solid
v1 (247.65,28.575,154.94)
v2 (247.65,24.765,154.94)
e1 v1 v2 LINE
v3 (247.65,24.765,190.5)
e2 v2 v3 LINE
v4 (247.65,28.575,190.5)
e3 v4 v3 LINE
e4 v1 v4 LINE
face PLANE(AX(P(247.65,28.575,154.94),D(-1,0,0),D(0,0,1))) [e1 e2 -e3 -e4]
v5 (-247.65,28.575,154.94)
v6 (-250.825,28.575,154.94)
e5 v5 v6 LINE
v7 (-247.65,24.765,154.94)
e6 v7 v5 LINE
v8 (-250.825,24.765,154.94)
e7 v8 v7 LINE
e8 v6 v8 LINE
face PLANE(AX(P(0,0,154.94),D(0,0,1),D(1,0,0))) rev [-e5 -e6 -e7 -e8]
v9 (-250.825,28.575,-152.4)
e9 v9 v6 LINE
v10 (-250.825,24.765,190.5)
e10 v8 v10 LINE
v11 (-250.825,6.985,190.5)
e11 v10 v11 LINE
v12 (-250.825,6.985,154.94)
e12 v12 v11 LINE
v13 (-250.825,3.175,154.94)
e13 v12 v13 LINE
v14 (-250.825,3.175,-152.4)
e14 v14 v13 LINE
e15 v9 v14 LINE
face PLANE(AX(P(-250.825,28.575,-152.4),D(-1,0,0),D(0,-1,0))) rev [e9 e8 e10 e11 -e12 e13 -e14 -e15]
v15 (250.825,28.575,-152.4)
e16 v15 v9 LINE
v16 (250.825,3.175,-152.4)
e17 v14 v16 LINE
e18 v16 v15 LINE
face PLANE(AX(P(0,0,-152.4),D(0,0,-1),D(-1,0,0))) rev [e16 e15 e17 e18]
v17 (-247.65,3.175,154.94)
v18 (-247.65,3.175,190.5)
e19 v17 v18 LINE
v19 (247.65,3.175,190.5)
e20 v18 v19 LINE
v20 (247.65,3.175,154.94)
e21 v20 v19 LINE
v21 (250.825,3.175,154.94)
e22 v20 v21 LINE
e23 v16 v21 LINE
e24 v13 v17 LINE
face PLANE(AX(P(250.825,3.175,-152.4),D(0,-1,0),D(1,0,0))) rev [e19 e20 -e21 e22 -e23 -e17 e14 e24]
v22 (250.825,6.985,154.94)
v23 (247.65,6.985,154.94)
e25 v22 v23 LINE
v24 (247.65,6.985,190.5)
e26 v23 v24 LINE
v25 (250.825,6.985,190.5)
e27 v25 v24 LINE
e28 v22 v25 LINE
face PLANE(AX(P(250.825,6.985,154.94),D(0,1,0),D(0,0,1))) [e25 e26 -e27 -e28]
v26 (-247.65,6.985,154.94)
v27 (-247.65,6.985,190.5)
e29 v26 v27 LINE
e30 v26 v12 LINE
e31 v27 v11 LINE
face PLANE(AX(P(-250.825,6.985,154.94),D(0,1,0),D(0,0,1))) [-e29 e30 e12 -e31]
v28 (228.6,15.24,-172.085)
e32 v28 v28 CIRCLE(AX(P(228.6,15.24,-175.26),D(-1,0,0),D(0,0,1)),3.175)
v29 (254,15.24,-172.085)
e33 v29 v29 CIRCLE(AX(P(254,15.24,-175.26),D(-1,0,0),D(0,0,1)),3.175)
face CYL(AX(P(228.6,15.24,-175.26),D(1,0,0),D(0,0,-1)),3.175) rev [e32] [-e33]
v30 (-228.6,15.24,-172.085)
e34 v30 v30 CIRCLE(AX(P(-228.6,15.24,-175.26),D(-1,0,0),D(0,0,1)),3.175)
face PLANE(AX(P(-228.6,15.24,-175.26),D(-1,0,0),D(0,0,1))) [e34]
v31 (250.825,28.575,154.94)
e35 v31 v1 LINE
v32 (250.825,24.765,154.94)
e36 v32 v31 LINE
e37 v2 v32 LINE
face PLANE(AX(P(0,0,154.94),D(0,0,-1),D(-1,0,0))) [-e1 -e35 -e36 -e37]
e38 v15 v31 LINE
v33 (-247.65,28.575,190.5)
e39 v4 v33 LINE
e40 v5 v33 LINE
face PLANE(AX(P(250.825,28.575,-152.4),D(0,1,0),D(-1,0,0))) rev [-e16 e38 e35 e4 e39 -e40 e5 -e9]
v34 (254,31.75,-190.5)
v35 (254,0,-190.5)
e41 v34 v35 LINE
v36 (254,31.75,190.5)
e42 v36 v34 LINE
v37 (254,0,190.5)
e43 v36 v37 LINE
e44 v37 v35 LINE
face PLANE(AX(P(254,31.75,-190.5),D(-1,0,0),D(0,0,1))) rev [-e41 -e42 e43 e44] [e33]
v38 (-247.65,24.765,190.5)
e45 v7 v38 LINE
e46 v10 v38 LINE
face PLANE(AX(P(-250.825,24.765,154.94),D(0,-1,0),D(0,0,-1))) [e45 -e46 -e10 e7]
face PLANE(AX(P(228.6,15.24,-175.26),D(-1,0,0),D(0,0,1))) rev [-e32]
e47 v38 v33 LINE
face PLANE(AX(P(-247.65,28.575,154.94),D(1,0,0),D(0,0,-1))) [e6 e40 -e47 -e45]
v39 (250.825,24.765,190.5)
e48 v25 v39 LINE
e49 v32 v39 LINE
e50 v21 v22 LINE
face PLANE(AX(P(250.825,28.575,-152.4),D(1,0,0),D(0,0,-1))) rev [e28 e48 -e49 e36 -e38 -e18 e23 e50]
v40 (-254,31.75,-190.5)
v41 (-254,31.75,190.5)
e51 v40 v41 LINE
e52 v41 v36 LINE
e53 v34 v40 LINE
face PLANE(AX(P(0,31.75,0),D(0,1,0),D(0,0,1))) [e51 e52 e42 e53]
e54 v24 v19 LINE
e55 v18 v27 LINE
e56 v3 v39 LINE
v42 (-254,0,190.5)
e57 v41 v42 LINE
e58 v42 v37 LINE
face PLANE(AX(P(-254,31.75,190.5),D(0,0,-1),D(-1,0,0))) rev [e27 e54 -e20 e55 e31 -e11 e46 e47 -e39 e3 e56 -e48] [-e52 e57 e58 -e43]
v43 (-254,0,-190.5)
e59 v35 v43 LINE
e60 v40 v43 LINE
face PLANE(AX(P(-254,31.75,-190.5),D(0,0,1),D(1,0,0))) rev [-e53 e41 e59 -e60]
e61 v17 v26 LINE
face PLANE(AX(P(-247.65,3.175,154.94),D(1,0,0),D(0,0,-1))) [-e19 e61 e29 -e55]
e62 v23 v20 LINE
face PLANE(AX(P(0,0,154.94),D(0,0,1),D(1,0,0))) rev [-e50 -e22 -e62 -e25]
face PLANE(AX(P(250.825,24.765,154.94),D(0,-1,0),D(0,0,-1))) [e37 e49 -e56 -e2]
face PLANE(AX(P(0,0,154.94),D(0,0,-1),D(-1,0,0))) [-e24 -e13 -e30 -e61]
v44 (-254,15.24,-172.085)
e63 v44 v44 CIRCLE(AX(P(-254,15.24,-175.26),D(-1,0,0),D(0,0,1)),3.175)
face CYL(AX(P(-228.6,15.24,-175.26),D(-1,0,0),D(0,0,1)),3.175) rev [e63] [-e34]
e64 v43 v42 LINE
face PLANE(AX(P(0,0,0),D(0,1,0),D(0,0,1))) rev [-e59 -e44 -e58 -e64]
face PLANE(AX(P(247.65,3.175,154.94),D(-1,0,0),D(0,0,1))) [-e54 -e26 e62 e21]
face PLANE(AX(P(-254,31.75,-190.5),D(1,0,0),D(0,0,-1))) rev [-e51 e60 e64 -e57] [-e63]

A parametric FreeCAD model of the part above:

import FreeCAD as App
import Part
import Sketcher
from FreeCAD import Vector
Q = App.Units.Quantity


def add_polygon(sketch, points):
    """Adds a closed chain of lines whose ends are joined by coincident constraints."""
    first, n = sketch.GeometryCount, len(points)
    for a, b in zip(points, points[1:] + points[:1]):
        sketch.addGeometry(Part.LineSegment(App.Vector(*a, 0), App.Vector(*b, 0)), False)
    for i in range(n):
        sketch.addConstraint(Sketcher.Constraint("Coincident", first + i, 2, first + (i + 1) % n, 1))

doc = App.newDocument("Part")
body = doc.addObject("PartDesign::Body", "Body")

sketch1 = doc.addObject("Sketcher::SketchObject", "Sketch")
body.addObject(sketch1)
sketch1.AttachmentSupport = (doc.XZ_Plane, [""])
sketch1.MapMode = "FlatFace"
add_polygon(sketch1, [(-254, -190), (-254, 190), (254, 190), (254, -190)])
sketch1.addConstraint([
    Sketcher.Constraint("Vertical", 0),
    Sketcher.Constraint("Horizontal", 1),
    Sketcher.Constraint("Vertical", 2),
    Sketcher.Constraint("Horizontal", 3),
    Sketcher.Constraint("Symmetric", 0, 2, 2, 2, -1, 1),
    Sketcher.Constraint("DistanceX", 1, 1, 1, 2, Q("20 in")),
    Sketcher.Constraint("DistanceY", 0, 1, 0, 2, Q("15 in")),
])
pad1 = doc.addObject("PartDesign::Pad", "Pad")
body.addObject(pad1)
pad1.Profile = sketch1
pad1.Length = Q("1.25 in")
pad1.Reversed = True

sketch2 = doc.addObject("Sketcher::SketchObject", "Sketch001")
body.addObject(sketch2)
sketch2.AttachmentSupport = (doc.XY_Plane, [""])
sketch2.MapMode = "FlatFace"
sketch2.AttachmentOffset = App.Placement(Vector(0, 0, 7.5 * 25.4), App.Rotation())
add_polygon(sketch2, [(-251, 29), (-251, 3), (251, 3), (251, 29)])
sketch2.addConstraint([
    Sketcher.Constraint("Vertical", 0),
    Sketcher.Constraint("Horizontal", 1),
    Sketcher.Constraint("Vertical", 2),
    Sketcher.Constraint("Horizontal", 3),
    Sketcher.Constraint("DistanceY", 0, 2, 0, 1, Q("1 in")),
    Sketcher.Constraint("DistanceX", 1, 1, 1, 2, Q("19.75 in")),
    Sketcher.Constraint("DistanceX", 0, 2, -1, 1, Q("9.875 in")),
    Sketcher.Constraint("DistanceY", -1, 1, 0, 2, Q("0.125 in")),
])
pocket1 = doc.addObject("PartDesign::Pocket", "Pocket")
body.addObject(pocket1)
pocket1.Profile = sketch2
pocket1.Length = Q("13.5 in")

sketch3 = doc.addObject("Sketcher::SketchObject", "Sketch002")
body.addObject(sketch3)
sketch3.AttachmentSupport = (doc.XY_Plane, [""])
sketch3.MapMode = "FlatFace"
sketch3.AttachmentOffset = App.Placement(Vector(0, 0, 7.5 * 25.4), App.Rotation())
add_polygon(sketch3, [(-250.8, 28.6), (-250.8, 24.8), (-247.7, 24.8), (-247.7, 28.6)])
add_polygon(sketch3, [(-250.8, 7), (-250.8, 3.2), (-247.7, 3.2), (-247.7, 7)])
add_polygon(sketch3, [(247.7, 7), (247.7, 3.2), (250.8, 3.2), (250.8, 7)])
add_polygon(sketch3, [(247.7, 28.6), (247.7, 24.8), (250.8, 24.8), (250.8, 28.6)])
sketch3.addConstraint([
    Sketcher.Constraint("Vertical", 0),
    Sketcher.Constraint("Horizontal", 1),
    Sketcher.Constraint("Vertical", 2),
    Sketcher.Constraint("Horizontal", 3),
    Sketcher.Constraint("Vertical", 4),
    Sketcher.Constraint("Horizontal", 5),
    Sketcher.Constraint("Vertical", 6),
    Sketcher.Constraint("Horizontal", 7),
    Sketcher.Constraint("Vertical", 8),
    Sketcher.Constraint("Horizontal", 9),
    Sketcher.Constraint("Vertical", 10),
    Sketcher.Constraint("Horizontal", 11),
    Sketcher.Constraint("Vertical", 12),
    Sketcher.Constraint("Horizontal", 13),
    Sketcher.Constraint("Vertical", 14),
    Sketcher.Constraint("Horizontal", 15),
    Sketcher.Constraint("Symmetric", 5, 2, 8, 2, -2),
    Sketcher.Constraint("Symmetric", 7, 2, 10, 2, -2),
    Sketcher.Constraint("Symmetric", 1, 2, 12, 2, -2),
    Sketcher.Constraint("Symmetric", 3, 2, 14, 2, -2),
    Sketcher.Constraint("Vertical", 3, 2, 4, 2),
    Sketcher.Constraint("Vertical", 2, 2, 5, 2),
    Sketcher.Constraint("Equal", 2, 4),
    Sketcher.Constraint("DistanceY", 4, 2, 3, 2, Q("1 in")),
    Sketcher.Constraint("DistanceY", 0, 2, 0, 1, Q("0.15 in")),
    Sketcher.Constraint("DistanceX", 5, 2, 8, 2, Q("19.5 in")),
    Sketcher.Constraint("DistanceX", 1, 1, 1, 2, Q("0.125 in")),
    Sketcher.Constraint("DistanceY", -1, 1, 0, 2, Q("0.975 in")),
])
pad2 = doc.addObject("PartDesign::Pad", "Pad001")
body.addObject(pad2)
pad2.Profile = sketch3
pad2.Length = Q("1.4 in")
pad2.Reversed = True

sketch4 = doc.addObject("Sketcher::SketchObject", "Sketch003")
body.addObject(sketch4)
sketch4.AttachmentSupport = (doc.YZ_Plane, [""])
sketch4.MapMode = "FlatFace"
sketch4.AttachmentOffset = App.Placement(Vector(0, 0, -10 * 25.4), App.Rotation())
sketch4.addGeometry(Part.Circle(Vector(15.2, -175.3, 0), Vector(0, 0, 1), 3.2), False)
sketch4.addConstraint([
    Sketcher.Constraint("Diameter", 0, Q("0.25 in")),
    Sketcher.Constraint("DistanceX", -1, 1, 0, 3, Q("0.6 in")),
    Sketcher.Constraint("DistanceY", 0, 3, -1, 1, Q("6.9 in")),
])
pocket2 = doc.addObject("PartDesign::Pocket", "Pocket001")
body.addObject(pocket2)
pocket2.Profile = sketch4
pocket2.Length = Q("1 in")
pocket2.Reversed = True

sketch5 = doc.addObject("Sketcher::SketchObject", "Sketch004")
body.addObject(sketch5)
sketch5.AttachmentSupport = (doc.YZ_Plane, [""])
sketch5.MapMode = "FlatFace"
sketch5.AttachmentOffset = App.Placement(Vector(0, 0, 9 * 25.4), App.Rotation())
sketch5.addGeometry(Part.Circle(Vector(15.2, -175.3, 0), Vector(0, 0, 1), 3.2), False)
sketch5.addConstraint([
    Sketcher.Constraint("Diameter", 0, Q("0.25 in")),
    Sketcher.Constraint("DistanceX", -1, 1, 0, 3, Q("0.6 in")),
    Sketcher.Constraint("DistanceY", 0, 3, -1, 1, Q("6.9 in")),
])
pocket3 = doc.addObject("PartDesign::Pocket", "Pocket002")
body.addObject(pocket3)
pocket3.Profile = sketch5
pocket3.Length = Q("1 in")
pocket3.Reversed = True

doc.recompute()
